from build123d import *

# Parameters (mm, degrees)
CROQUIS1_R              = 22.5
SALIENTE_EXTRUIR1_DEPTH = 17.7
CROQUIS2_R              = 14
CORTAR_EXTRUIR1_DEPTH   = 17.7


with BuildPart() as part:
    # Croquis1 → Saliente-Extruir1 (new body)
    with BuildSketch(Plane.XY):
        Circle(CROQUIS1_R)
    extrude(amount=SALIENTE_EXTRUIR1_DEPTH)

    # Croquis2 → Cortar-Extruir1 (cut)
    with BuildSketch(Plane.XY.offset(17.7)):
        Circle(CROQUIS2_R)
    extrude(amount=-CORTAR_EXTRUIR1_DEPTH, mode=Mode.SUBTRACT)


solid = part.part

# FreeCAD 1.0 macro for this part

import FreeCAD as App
import Part
import Sketcher

doc = App.newDocument("Part")
params = doc.addObject("Spreadsheet::Sheet", "Params")
for row, (alias, value) in enumerate([
    ("sketch1_diameter", "45 mm"),
    ("pad1_length", "17.7 mm"),
    ("sketch2_diameter", "28 mm"),
    ("pocket1_length", "17.7 mm"),
], start=1):
    params.set(f"A{row}", alias)
    params.set(f"B{row}", "=" + value)
    params.setAlias(f"B{row}", alias)

body = doc.addObject("PartDesign::Body", "Body")

# Sketch on XY plane
sketch1 = body.newObject("Sketcher::SketchObject", "Sketch")
sketch1.AttachmentSupport = (doc.getObject("XY_Plane"), [""])
sketch1.MapMode = "FlatFace"
sketch1.addGeometry(Part.Circle(App.Vector(0, 0, 0), App.Vector(0, 0, 1), 22), False)
sketch1.addConstraint(Sketcher.Constraint("Coincident", 0, 3, -1, 1))
sketch1.addConstraint(Sketcher.Constraint("Diameter", 0, 45.0))
sketch1.setExpression("Constraints[1]", "Params.sketch1_diameter")
pad1 = body.newObject("PartDesign::Pad", "Pad")
pad1.Profile = sketch1
pad1.setExpression("Length", "Params.pad1_length")

# Sketch on XY plane
sketch2 = body.newObject("Sketcher::SketchObject", "Sketch001")
sketch2.AttachmentSupport = (doc.getObject("XY_Plane"), [""])
sketch2.MapMode = "FlatFace"
sketch2.AttachmentOffset = App.Placement(App.Vector(0, 0, 17.7), App.Rotation())
sketch2.addGeometry(Part.Circle(App.Vector(0, 0, 0), App.Vector(0, 0, 1), 14), False)
sketch2.addConstraint(Sketcher.Constraint("Coincident", 0, 3, -1, 1))
sketch2.addConstraint(Sketcher.Constraint("Diameter", 0, 28.0))
sketch2.setExpression("Constraints[1]", "Params.sketch2_diameter")
pocket1 = body.newObject("PartDesign::Pocket", "Pocket")
pocket1.Profile = sketch2
pocket1.setExpression("Length", "Params.pocket1_length")

doc.recompute()
